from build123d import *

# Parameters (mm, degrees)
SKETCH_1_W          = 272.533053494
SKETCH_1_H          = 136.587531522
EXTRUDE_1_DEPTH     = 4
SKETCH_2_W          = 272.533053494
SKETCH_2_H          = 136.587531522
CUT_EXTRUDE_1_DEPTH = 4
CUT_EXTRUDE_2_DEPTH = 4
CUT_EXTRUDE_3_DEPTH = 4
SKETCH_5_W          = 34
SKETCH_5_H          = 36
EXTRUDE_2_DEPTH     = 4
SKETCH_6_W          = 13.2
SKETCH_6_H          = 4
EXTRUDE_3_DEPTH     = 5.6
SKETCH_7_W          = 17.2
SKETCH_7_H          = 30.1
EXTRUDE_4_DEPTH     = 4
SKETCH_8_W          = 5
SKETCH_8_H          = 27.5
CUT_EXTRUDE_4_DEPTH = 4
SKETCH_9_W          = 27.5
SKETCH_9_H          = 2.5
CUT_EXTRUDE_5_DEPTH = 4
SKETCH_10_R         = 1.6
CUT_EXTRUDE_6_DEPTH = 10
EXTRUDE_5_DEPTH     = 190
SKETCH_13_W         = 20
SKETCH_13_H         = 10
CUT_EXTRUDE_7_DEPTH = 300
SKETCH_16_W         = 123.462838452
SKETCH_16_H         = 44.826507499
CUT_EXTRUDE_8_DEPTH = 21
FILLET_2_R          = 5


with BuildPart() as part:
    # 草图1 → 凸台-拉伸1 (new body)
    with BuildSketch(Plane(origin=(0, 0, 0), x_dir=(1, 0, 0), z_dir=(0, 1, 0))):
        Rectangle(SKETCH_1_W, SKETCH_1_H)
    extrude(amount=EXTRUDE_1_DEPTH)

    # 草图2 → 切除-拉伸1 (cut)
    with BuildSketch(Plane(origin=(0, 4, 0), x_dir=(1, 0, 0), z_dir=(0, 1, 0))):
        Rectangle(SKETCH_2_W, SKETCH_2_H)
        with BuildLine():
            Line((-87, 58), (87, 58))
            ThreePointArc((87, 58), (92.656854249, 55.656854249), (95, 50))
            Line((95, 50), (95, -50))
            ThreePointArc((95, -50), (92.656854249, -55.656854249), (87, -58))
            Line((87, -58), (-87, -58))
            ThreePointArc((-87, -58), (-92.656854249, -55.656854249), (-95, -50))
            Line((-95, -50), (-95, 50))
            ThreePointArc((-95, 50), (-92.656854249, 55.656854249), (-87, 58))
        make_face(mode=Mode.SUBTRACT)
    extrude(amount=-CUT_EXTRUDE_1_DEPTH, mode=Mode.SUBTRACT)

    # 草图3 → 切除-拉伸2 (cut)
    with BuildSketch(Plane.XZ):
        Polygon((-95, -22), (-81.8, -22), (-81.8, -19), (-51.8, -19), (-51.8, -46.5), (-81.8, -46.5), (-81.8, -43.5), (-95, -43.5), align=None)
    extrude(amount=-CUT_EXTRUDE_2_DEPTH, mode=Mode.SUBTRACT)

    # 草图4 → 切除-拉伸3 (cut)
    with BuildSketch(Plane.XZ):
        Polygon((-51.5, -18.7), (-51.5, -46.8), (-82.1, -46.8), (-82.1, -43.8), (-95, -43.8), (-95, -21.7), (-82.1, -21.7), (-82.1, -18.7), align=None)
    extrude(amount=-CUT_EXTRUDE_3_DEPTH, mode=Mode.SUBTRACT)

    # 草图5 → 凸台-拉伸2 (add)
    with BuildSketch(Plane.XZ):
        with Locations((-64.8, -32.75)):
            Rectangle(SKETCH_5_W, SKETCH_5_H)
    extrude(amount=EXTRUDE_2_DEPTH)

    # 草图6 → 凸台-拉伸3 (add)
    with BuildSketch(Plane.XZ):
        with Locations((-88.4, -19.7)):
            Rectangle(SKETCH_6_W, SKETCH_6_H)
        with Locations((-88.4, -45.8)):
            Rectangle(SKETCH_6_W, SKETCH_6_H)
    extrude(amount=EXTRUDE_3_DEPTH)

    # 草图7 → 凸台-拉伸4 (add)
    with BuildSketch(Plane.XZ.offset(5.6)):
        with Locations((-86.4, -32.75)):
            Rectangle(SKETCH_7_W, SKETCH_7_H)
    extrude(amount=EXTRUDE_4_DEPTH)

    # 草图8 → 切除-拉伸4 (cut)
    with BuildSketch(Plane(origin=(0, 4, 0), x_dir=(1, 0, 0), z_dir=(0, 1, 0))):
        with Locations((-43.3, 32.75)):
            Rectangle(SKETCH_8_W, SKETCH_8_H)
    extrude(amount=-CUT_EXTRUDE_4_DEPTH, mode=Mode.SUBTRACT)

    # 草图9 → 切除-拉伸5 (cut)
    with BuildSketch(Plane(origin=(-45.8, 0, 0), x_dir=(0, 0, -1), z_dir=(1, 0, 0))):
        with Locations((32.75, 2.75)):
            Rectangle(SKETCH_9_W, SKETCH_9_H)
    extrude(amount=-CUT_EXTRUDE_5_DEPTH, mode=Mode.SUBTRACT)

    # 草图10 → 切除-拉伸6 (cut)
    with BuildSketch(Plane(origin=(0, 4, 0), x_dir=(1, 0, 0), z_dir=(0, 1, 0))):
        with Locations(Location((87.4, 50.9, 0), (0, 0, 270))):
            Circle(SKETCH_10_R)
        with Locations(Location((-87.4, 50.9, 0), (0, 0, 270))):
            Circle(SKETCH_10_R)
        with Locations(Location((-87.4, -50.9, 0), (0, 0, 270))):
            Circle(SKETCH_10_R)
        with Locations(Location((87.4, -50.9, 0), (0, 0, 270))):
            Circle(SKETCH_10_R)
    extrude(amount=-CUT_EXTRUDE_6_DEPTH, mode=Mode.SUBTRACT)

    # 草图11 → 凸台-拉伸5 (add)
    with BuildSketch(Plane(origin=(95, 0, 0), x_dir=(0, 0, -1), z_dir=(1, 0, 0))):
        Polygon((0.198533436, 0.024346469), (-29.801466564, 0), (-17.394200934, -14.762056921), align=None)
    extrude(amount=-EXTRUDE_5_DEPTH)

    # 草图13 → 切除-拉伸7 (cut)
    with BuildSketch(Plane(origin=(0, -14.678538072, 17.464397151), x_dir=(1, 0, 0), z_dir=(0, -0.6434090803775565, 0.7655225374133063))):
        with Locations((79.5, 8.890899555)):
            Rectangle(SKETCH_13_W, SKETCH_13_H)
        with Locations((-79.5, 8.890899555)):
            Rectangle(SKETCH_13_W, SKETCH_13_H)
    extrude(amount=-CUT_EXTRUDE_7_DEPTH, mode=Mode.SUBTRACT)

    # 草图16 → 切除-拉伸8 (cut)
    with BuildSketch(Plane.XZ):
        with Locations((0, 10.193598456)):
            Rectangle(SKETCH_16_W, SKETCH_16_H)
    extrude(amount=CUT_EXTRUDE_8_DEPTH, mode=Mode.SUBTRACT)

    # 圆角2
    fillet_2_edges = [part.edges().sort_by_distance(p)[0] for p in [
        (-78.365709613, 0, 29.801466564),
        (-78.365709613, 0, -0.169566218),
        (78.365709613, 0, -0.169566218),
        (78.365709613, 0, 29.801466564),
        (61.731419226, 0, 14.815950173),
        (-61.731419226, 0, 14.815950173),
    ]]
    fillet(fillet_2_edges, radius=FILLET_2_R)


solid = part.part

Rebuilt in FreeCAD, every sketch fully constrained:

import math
import FreeCAD as App
import Part
import Sketcher

V = App.Vector


def edges_at(feature, points):
    """Names of the edges that pass closest to the given points."""
    edges = feature.Shape.Edges
    near = lambda p: min(range(len(edges)), key=lambda i: edges[i].distToShape(Part.Vertex(*p))[0])
    return sorted({f"Edge{near(p) + 1}" for p in points})


def add_polygon(sketch, points):
    """Adds a closed chain of lines whose ends are joined by coincident constraints."""
    first, n = sketch.GeometryCount, len(points)
    for a, b in zip(points, points[1:] + points[:1]):
        sketch.addGeometry(Part.LineSegment(App.Vector(*a, 0), App.Vector(*b, 0)), False)
    for i in range(n):
        sketch.addConstraint(Sketcher.Constraint("Coincident", first + i, 2, first + (i + 1) % n, 1))

doc = App.newDocument("Part")
body = doc.addObject("PartDesign::Body", "Body")

# Sketch on XZ plane
sketch1 = doc.addObject("Sketcher::SketchObject", "Sketch")
body.addObject(sketch1)
sketch1.AttachmentSupport = (doc.XZ_Plane, [""])
sketch1.MapMode = "FlatFace"
add_polygon(sketch1, [(-136.266527, -68.293766), (-136.266527, 68.293766), (136.266527, 68.293766), (136.266527, -68.293766)])  # lines 0-3
sketch1.addConstraint([
    Sketcher.Constraint("Vertical", 0),
    Sketcher.Constraint("Horizontal", 1),
    Sketcher.Constraint("Vertical", 2),
    Sketcher.Constraint("Horizontal", 3),
    Sketcher.Constraint("Symmetric", 0, 2, 2, 2, -1, 1),
    Sketcher.Constraint("DistanceY", 0, 1, 0, 2, 136.587532),
    Sketcher.Constraint("DistanceX", 1, 1, 1, 2, 272.533053),
])
pad1 = doc.addObject("PartDesign::Pad", "Pad")
body.addObject(pad1)
pad1.Profile = sketch1
pad1.Length = 4
pad1.Reversed = True

# Sketch on XZ plane
sketch2 = doc.addObject("Sketcher::SketchObject", "Sketch001")
body.addObject(sketch2)
sketch2.AttachmentSupport = (doc.XZ_Plane, [""])
sketch2.MapMode = "FlatFace"
sketch2.AttachmentOffset = App.Placement(V(0, 0, -4), App.Rotation())
add_polygon(sketch2, [(-136.266527, -68.293766), (-136.266527, 68.293766), (136.266527, 68.293766), (136.266527, -68.293766)])  # lines 0-3
sketch2.addGeometry(Part.ArcOfCircle(Part.Circle(V(-87, -50, 0), V(0, 0, 1), 8), math.radians(-180), math.radians(-90)), False)  # 4
sketch2.addGeometry(Part.LineSegment(V(-87, -58, 0), V(87, -58, 0)), False)  # 5
sketch2.addGeometry(Part.ArcOfCircle(Part.Circle(V(87, -50, 0), V(0, 0, 1), 8), math.radians(-90), math.radians(0)), False)  # 6
sketch2.addGeometry(Part.LineSegment(V(95, -50, 0), V(95, 50, 0)), False)  # 7
sketch2.addGeometry(Part.ArcOfCircle(Part.Circle(V(87, 50, 0), V(0, 0, 1), 8), math.radians(0), math.radians(90)), False)  # 8
sketch2.addGeometry(Part.LineSegment(V(87, 58, 0), V(-87, 58, 0)), False)  # 9
sketch2.addGeometry(Part.ArcOfCircle(Part.Circle(V(-87, 50, 0), V(0, 0, 1), 8), math.radians(90), math.radians(180)), False)  # 10
sketch2.addGeometry(Part.LineSegment(V(-95, 50, 0), V(-95, -50, 0)), False)  # 11
sketch2.addConstraint([
    Sketcher.Constraint("Tangent", 4, 2, 5, 1),
    Sketcher.Constraint("Tangent", 5, 2, 6, 1),
    Sketcher.Constraint("Tangent", 6, 2, 7, 1),
    Sketcher.Constraint("Tangent", 7, 2, 8, 1),
    Sketcher.Constraint("Tangent", 8, 2, 9, 1),
    Sketcher.Constraint("Tangent", 9, 2, 10, 1),
    Sketcher.Constraint("Tangent", 10, 2, 11, 1),
    Sketcher.Constraint("Tangent", 11, 2, 4, 1),
    Sketcher.Constraint("Vertical", 0),
    Sketcher.Constraint("Horizontal", 1),
    Sketcher.Constraint("Vertical", 2),
    Sketcher.Constraint("Horizontal", 3),
    Sketcher.Constraint("Horizontal", 5),
    Sketcher.Constraint("Vertical", 7),
    Sketcher.Constraint("Horizontal", 9),
    Sketcher.Constraint("Vertical", 11),
    Sketcher.Constraint("Equal", 4, 6),
    Sketcher.Constraint("Equal", 6, 8),
    Sketcher.Constraint("Equal", 8, 10),
    Sketcher.Constraint("Symmetric", 4, 3, 8, 3, -1, 1),
    Sketcher.Constraint("Symmetric", 0, 2, 2, 2, -1, 1),
    Sketcher.Constraint("Radius", 4, 8.0),
    Sketcher.Constraint("DistanceX", 5, 1, 5, 2, 174.0),
    Sketcher.Constraint("DistanceY", 7, 1, 7, 2, 100.0),
    Sketcher.Constraint("DistanceY", 0, 1, 0, 2, 136.587532),
    Sketcher.Constraint("DistanceX", 1, 1, 1, 2, 272.533053),
])
pocket1 = doc.addObject("PartDesign::Pocket", "Pocket")
body.addObject(pocket1)
pocket1.Profile = sketch2
pocket1.Length = 4
pocket1.Reversed = True

# Sketch on XZ plane
sketch3 = doc.addObject("Sketcher::SketchObject", "Sketch002")
body.addObject(sketch3)
sketch3.AttachmentSupport = (doc.XZ_Plane, [""])
sketch3.MapMode = "FlatFace"
add_polygon(sketch3, [(-81.8, -22), (-95, -22), (-95, -43.5), (-81.8, -43.5), (-81.8, -46.5), (-51.8, -46.5), (-51.8, -19), (-81.8, -19)])  # lines 0-7
sketch3.addConstraint([
    Sketcher.Constraint("Horizontal", 0),
    Sketcher.Constraint("Vertical", 1),
    Sketcher.Constraint("Horizontal", 2),
    Sketcher.Constraint("Vertical", 3),
    Sketcher.Constraint("Horizontal", 4),
    Sketcher.Constraint("Vertical", 5),
    Sketcher.Constraint("Horizontal", 6),
    Sketcher.Constraint("Vertical", 7),
    Sketcher.Constraint("Vertical", 3, 2, 6, 2),
    Sketcher.Constraint("Equal", 3, 7),
    Sketcher.Constraint("DistanceX", 4, 1, 4, 2, 30.0),
    Sketcher.Constraint("DistanceY", 3, 2, 3, 1, 3.0),
    Sketcher.Constraint("DistanceX", 0, 2, 0, 1, 13.2),
    Sketcher.Constraint("DistanceY", 1, 2, 1, 1, 21.5),
    Sketcher.Constraint("DistanceX", 0, 2, -1, 1, 95.0),
    Sketcher.Constraint("DistanceY", 0, 2, -1, 1, 22.0),
])
pocket2 = doc.addObject("PartDesign::Pocket", "Pocket001")
body.addObject(pocket2)
pocket2.Profile = sketch3
pocket2.Length = 4

# Sketch on XZ plane
sketch4 = doc.addObject("Sketcher::SketchObject", "Sketch003")
body.addObject(sketch4)
sketch4.AttachmentSupport = (doc.XZ_Plane, [""])
sketch4.MapMode = "FlatFace"
add_polygon(sketch4, [(-51.5, -46.8), (-51.5, -18.7), (-82.1, -18.7), (-82.1, -21.7), (-95, -21.7), (-95, -43.8), (-82.1, -43.8), (-82.1, -46.8)])  # lines 0-7
sketch4.addConstraint([
    Sketcher.Constraint("Vertical", 0),
    Sketcher.Constraint("Horizontal", 1),
    Sketcher.Constraint("Vertical", 2),
    Sketcher.Constraint("Horizontal", 3),
    Sketcher.Constraint("Vertical", 4),
    Sketcher.Constraint("Horizontal", 5),
    Sketcher.Constraint("Vertical", 6),
    Sketcher.Constraint("Horizontal", 7),
    Sketcher.Constraint("Vertical", 2, 2, 5, 2),
    Sketcher.Constraint("Equal", 2, 6),
    Sketcher.Constraint("DistanceY", 2, 2, 2, 1, 3.0),
    Sketcher.Constraint("DistanceX", 1, 2, 1, 1, 30.6),
    Sketcher.Constraint("DistanceX", 3, 2, 3, 1, 12.9),
    Sketcher.Constraint("DistanceY", 0, 1, 0, 2, 28.1),
    Sketcher.Constraint("DistanceX", 3, 2, -1, 1, 95.0),
    Sketcher.Constraint("DistanceY", 0, 2, -1, 1, 18.7),
])
pocket3 = doc.addObject("PartDesign::Pocket", "Pocket002")
body.addObject(pocket3)
pocket3.Profile = sketch4
pocket3.Length = 4

# Sketch on XZ plane
sketch5 = doc.addObject("Sketcher::SketchObject", "Sketch004")
body.addObject(sketch5)
sketch5.AttachmentSupport = (doc.XZ_Plane, [""])
sketch5.MapMode = "FlatFace"
add_polygon(sketch5, [(-81.8, -14.75), (-81.8, -50.75), (-47.8, -50.75), (-47.8, -14.75)])  # lines 0-3
sketch5.addConstraint([
    Sketcher.Constraint("Vertical", 0),
    Sketcher.Constraint("Horizontal", 1),
    Sketcher.Constraint("Vertical", 2),
    Sketcher.Constraint("Horizontal", 3),
    Sketcher.Constraint("DistanceX", 1, 1, 1, 2, 34.0),
    Sketcher.Constraint("DistanceY", 0, 2, 0, 1, 36.0),
    Sketcher.Constraint("DistanceX", 0, 2, -1, 1, 81.8),
    Sketcher.Constraint("DistanceY", 0, 2, -1, 1, 50.75),
])
pad2 = doc.addObject("PartDesign::Pad", "Pad001")
body.addObject(pad2)
pad2.Profile = sketch5
pad2.Length = 4

# Sketch on XZ plane
sketch6 = doc.addObject("Sketcher::SketchObject", "Sketch005")
body.addObject(sketch6)
sketch6.AttachmentSupport = (doc.XZ_Plane, [""])
sketch6.MapMode = "FlatFace"
add_polygon(sketch6, [(-95, -17.7), (-95, -21.7), (-81.8, -21.7), (-81.8, -17.7)])  # lines 0-3
add_polygon(sketch6, [(-95, -43.8), (-95, -47.8), (-81.8, -47.8), (-81.8, -43.8)])  # lines 4-7
sketch6.addConstraint([
    Sketcher.Constraint("Vertical", 0),
    Sketcher.Constraint("Horizontal", 1),
    Sketcher.Constraint("Vertical", 2),
    Sketcher.Constraint("Horizontal", 3),
    Sketcher.Constraint("Vertical", 4),
    Sketcher.Constraint("Horizontal", 5),
    Sketcher.Constraint("Vertical", 6),
    Sketcher.Constraint("Horizontal", 7),
    Sketcher.Constraint("Vertical", 3, 2, 4, 2),
    Sketcher.Constraint("Vertical", 2, 2, 5, 2),
    Sketcher.Constraint("Equal", 2, 4),
    Sketcher.Constraint("DistanceY", 0, 2, 0, 1, 4.0),
    Sketcher.Constraint("DistanceX", 1, 1, 1, 2, 13.2),
    Sketcher.Constraint("DistanceX", 0, 2, -1, 1, 95.0),
    Sketcher.Constraint("DistanceY", 0, 2, -1, 1, 21.7),
    Sketcher.Constraint("DistanceY", 4, 2, -1, 1, 47.8),
])
pad3 = doc.addObject("PartDesign::Pad", "Pad002")
body.addObject(pad3)
pad3.Profile = sketch6
pad3.Length = 5.6

# Sketch on XZ plane
sketch7 = doc.addObject("Sketcher::SketchObject", "Sketch006")
body.addObject(sketch7)
sketch7.AttachmentSupport = (doc.XZ_Plane, [""])
sketch7.MapMode = "FlatFace"
sketch7.AttachmentOffset = App.Placement(V(0, 0, 5.6), App.Rotation())
add_polygon(sketch7, [(-95, -17.7), (-95, -47.8), (-77.8, -47.8), (-77.8, -17.7)])  # lines 0-3
sketch7.addConstraint([
    Sketcher.Constraint("Vertical", 0),
    Sketcher.Constraint("Horizontal", 1),
    Sketcher.Constraint("Vertical", 2),
    Sketcher.Constraint("Horizontal", 3),
    Sketcher.Constraint("DistanceX", 1, 1, 1, 2, 17.2),
    Sketcher.Constraint("DistanceY", 0, 2, 0, 1, 30.1),
    Sketcher.Constraint("DistanceX", 0, 2, -1, 1, 95.0),
    Sketcher.Constraint("DistanceY", 0, 2, -1, 1, 47.8),
])
pad4 = doc.addObject("PartDesign::Pad", "Pad003")
body.addObject(pad4)
pad4.Profile = sketch7
pad4.Length = 4

# Sketch on XZ plane
sketch8 = doc.addObject("Sketcher::SketchObject", "Sketch007")
body.addObject(sketch8)
sketch8.AttachmentSupport = (doc.XZ_Plane, [""])
sketch8.MapMode = "FlatFace"
sketch8.AttachmentOffset = App.Placement(V(0, 0, -4), App.Rotation())
add_polygon(sketch8, [(-45.8, -46.5), (-45.8, -19), (-40.8, -19), (-40.8, -46.5)])  # lines 0-3
sketch8.addConstraint([
    Sketcher.Constraint("Vertical", 0),
    Sketcher.Constraint("Horizontal", 1),
    Sketcher.Constraint("Vertical", 2),
    Sketcher.Constraint("Horizontal", 3),
    Sketcher.Constraint("DistanceX", 1, 1, 1, 2, 5.0),
    Sketcher.Constraint("DistanceY", 0, 1, 0, 2, 27.5),
    Sketcher.Constraint("DistanceY", 0, 2, -1, 1, 19.0),
    Sketcher.Constraint("DistanceX", 0, 2, -1, 1, 45.8),
])
pocket4 = doc.addObject("PartDesign::Pocket", "Pocket003")
body.addObject(pocket4)
pocket4.Profile = sketch8
pocket4.Length = 4
pocket4.Reversed = True

# Sketch on YZ plane
sketch9 = doc.addObject("Sketcher::SketchObject", "Sketch008")
body.addObject(sketch9)
sketch9.AttachmentSupport = (doc.YZ_Plane, [""])
sketch9.MapMode = "FlatFace"
sketch9.AttachmentOffset = App.Placement(V(0, 0, -45.8), App.Rotation())
add_polygon(sketch9, [(4, -19), (1.5, -19), (1.5, -46.5), (4, -46.5)])  # lines 0-3
sketch9.addConstraint([
    Sketcher.Constraint("Horizontal", 0),
    Sketcher.Constraint("Vertical", 1),
    Sketcher.Constraint("Horizontal", 2),
    Sketcher.Constraint("Vertical", 3),
    Sketcher.Constraint("DistanceX", 0, 2, 0, 1, 2.5),
    Sketcher.Constraint("DistanceY", 1, 2, 1, 1, 27.5),
    Sketcher.Constraint("DistanceY", 0, 2, -1, 1, 19.0),
    Sketcher.Constraint("DistanceX", -1, 1, 2, 2, 4.0),
])
pocket5 = doc.addObject("PartDesign::Pocket", "Pocket004")
body.addObject(pocket5)
pocket5.Profile = sketch9
pocket5.Length = 4

# Sketch on XZ plane
sketch10 = doc.addObject("Sketcher::SketchObject", "Sketch009")
body.addObject(sketch10)
sketch10.AttachmentSupport = (doc.XZ_Plane, [""])
sketch10.MapMode = "FlatFace"
sketch10.AttachmentOffset = App.Placement(V(0, 0, -4), App.Rotation())
sketch10.addGeometry([
    Part.Circle(V(87.4, -50.9, 0), V(0, 0, 1), 1.6),
    Part.Circle(V(-87.4, -50.9, 0), V(0, 0, 1), 1.6),
    Part.Circle(V(-87.4, 50.9, 0), V(0, 0, 1), 1.6),
    Part.Circle(V(87.4, 50.9, 0), V(0, 0, 1), 1.6),
], False)
sketch10.addConstraint([
    Sketcher.Constraint("Equal", 0, 1),
    Sketcher.Constraint("Equal", 1, 2),
    Sketcher.Constraint("Equal", 2, 3),
    Sketcher.Constraint("Symmetric", 0, 3, 2, 3, -1, 1),
    Sketcher.Constraint("Symmetric", 1, 3, 3, 3, -1, 1),
    Sketcher.Constraint("Symmetric", 0, 3, 1, 3, -2),
    Sketcher.Constraint("Diameter", 0, 3.2),
    Sketcher.Constraint("DistanceX", -1, 1, 0, 3, 87.4),
    Sketcher.Constraint("DistanceY", 0, 3, -1, 1, 50.9),
])
pocket6 = doc.addObject("PartDesign::Pocket", "Pocket005")
body.addObject(pocket6)
pocket6.Profile = sketch10
pocket6.Length = 10
pocket6.Reversed = True

# Sketch on YZ plane
sketch11 = doc.addObject("Sketcher::SketchObject", "Sketch010")
body.addObject(sketch11)
sketch11.AttachmentSupport = (doc.YZ_Plane, [""])
sketch11.MapMode = "FlatFace"
sketch11.AttachmentOffset = App.Placement(V(0, 0, 95), App.Rotation())
add_polygon(sketch11, [(0.024346, -0.198533), (0, 29.801467), (-14.762057, 17.394201)])  # lines 0-2
sketch11.addConstraint([
    Sketcher.Constraint("PointOnObject", 0, 2, -2),
    Sketcher.Constraint("Perpendicular", 1, 2),
    Sketcher.Constraint("DistanceY", 2, 2, 0, 2, 30.0),
    Sketcher.Constraint("DistanceY", -1, 1, 1, 2, 17.394201),
    Sketcher.Constraint("Distance", 2, 22.981341),
    Sketcher.Constraint("DistanceY", -1, 1, 0, 2, 29.801467),
])
pad5 = doc.addObject("PartDesign::Pad", "Pad004")
body.addObject(pad5)
pad5.Profile = sketch11
pad5.Length = 190
pad5.Reversed = True

# Sketch on an angled plane
sketch12 = doc.addObject("Sketcher::SketchObject", "Sketch011")
body.addObject(sketch12)
sketch12.Placement = App.Placement(V(0, -14.678538, 17.464397), App.Rotation(V(1, 0, 0), V(0, 0.765522537, 0.64340908), V(0, -0.64340908, 0.765522537), "ZXY"))
add_polygon(sketch12, [(69.5, 13.8909), (69.5, 3.8909), (89.5, 3.8909), (89.5, 13.8909)])  # lines 0-3
add_polygon(sketch12, [(-89.5, 13.8909), (-89.5, 3.8909), (-69.5, 3.8909), (-69.5, 13.8909)])  # lines 4-7
sketch12.addConstraint([
    Sketcher.Constraint("Vertical", 0),
    Sketcher.Constraint("Horizontal", 1),
    Sketcher.Constraint("Vertical", 2),
    Sketcher.Constraint("Horizontal", 3),
    Sketcher.Constraint("Vertical", 4),
    Sketcher.Constraint("Horizontal", 5),
    Sketcher.Constraint("Vertical", 6),
    Sketcher.Constraint("Horizontal", 7),
    Sketcher.Constraint("Symmetric", 1, 2, 4, 2, -2),
    Sketcher.Constraint("Symmetric", 3, 2, 6, 2, -2),
    Sketcher.Constraint("DistanceX", 1, 1, 1, 2, 20.0),
    Sketcher.Constraint("DistanceY", 0, 2, 0, 1, 10.0),
    Sketcher.Constraint("DistanceX", 4, 2, 0, 2, 159.0),
    Sketcher.Constraint("DistanceY", -1, 1, 0, 2, 3.8909),
])
pocket7 = doc.addObject("PartDesign::Pocket", "Pocket006")
body.addObject(pocket7)
pocket7.Profile = sketch12
pocket7.Length = 300

# Sketch on XZ plane
sketch13 = doc.addObject("Sketcher::SketchObject", "Sketch012")
body.addObject(sketch13)
sketch13.AttachmentSupport = (doc.XZ_Plane, [""])
sketch13.MapMode = "FlatFace"
add_polygon(sketch13, [(-61.731419, 32.606852), (-61.731419, -12.219655), (61.731419, -12.219655), (61.731419, 32.606852)])  # lines 0-3
sketch13.addConstraint([
    Sketcher.Constraint("Vertical", 0),
    Sketcher.Constraint("Horizontal", 1),
    Sketcher.Constraint("Vertical", 2),
    Sketcher.Constraint("Horizontal", 3),
    Sketcher.Constraint("DistanceX", 1, 1, 1, 2, 123.462838),
    Sketcher.Constraint("DistanceY", 0, 2, 0, 1, 44.826507),
    Sketcher.Constraint("DistanceX", 0, 2, -1, 1, 61.731419),
    Sketcher.Constraint("DistanceY", 0, 2, -1, 1, 12.219655),
])
pocket8 = doc.addObject("PartDesign::Pocket", "Pocket007")
body.addObject(pocket8)
pocket8.Profile = sketch13
pocket8.Length = 21
pocket8.Reversed = True
doc.recompute()

fillet = doc.addObject("PartDesign::Fillet", "Fillet")
body.addObject(fillet)
fillet.Base = (pocket8, edges_at(pocket8, [
    (-78.366, 0, 29.801),
    (-78.366, 0, -0.17),
    (78.366, 0, -0.17),
    (78.366, 0, 29.801),
    (61.731, 0, 14.816),
    (-61.731, 0, 14.816),
]))
fillet.Radius = 5

doc.recompute()
